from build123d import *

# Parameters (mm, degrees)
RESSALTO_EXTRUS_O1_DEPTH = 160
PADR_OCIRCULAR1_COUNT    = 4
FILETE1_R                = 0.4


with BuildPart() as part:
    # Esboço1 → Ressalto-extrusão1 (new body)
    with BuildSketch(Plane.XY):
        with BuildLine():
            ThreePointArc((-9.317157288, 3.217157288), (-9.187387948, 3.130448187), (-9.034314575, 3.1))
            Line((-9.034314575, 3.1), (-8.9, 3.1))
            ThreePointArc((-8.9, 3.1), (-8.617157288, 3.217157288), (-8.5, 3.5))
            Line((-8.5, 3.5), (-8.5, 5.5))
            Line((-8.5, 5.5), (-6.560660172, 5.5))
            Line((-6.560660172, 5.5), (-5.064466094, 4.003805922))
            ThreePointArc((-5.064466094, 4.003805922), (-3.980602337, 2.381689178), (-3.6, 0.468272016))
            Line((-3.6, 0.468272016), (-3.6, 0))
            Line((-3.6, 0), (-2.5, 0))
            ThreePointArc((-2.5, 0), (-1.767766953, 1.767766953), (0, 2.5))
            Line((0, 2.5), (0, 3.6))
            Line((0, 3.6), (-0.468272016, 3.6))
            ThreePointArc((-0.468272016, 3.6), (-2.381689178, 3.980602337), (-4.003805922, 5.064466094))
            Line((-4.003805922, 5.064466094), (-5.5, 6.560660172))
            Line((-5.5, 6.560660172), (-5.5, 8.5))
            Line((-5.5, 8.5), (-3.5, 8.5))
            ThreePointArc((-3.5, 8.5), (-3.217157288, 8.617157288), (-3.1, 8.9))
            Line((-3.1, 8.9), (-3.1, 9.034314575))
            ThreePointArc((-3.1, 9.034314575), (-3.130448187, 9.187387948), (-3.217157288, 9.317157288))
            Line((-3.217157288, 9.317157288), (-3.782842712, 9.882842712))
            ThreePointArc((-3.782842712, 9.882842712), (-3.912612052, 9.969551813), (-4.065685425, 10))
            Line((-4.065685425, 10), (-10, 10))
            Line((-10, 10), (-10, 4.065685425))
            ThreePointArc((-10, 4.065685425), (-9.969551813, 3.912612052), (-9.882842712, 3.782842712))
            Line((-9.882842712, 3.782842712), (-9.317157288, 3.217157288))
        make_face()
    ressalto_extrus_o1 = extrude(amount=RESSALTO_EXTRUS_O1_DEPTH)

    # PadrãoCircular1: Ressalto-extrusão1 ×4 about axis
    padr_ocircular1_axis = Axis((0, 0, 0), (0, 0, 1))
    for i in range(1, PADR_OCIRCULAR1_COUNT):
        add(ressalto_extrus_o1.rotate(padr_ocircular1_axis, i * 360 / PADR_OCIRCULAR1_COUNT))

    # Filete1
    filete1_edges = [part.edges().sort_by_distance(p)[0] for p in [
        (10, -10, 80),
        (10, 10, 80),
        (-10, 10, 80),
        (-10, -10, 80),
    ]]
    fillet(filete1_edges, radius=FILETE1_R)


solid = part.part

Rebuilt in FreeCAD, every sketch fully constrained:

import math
import FreeCAD as App
import Part
import Sketcher

V = App.Vector


def edges_at(feature, points):
    """Names of the edges that pass closest to the given points."""
    edges = feature.Shape.Edges
    near = lambda p: min(range(len(edges)), key=lambda i: edges[i].distToShape(Part.Vertex(*p))[0])
    return sorted({f"Edge{near(p) + 1}" for p in points})

doc = App.newDocument("Part")
body = doc.addObject("PartDesign::Body", "Body")

# Sketch on XY plane
sketch1 = doc.addObject("Sketcher::SketchObject", "Sketch")
body.addObject(sketch1)
sketch1.AttachmentSupport = (doc.XY_Plane, [""])
sketch1.MapMode = "FlatFace"
sketch1.addGeometry(Part.ArcOfCircle(Part.Circle(V(-9.034315, 3.5, 0), V(0, 0, 1), 0.4), math.radians(-135), math.radians(-90)), False)
sketch1.addGeometry(Part.LineSegment(V(-9.034315, 3.1, 0), V(-8.9, 3.1, 0)), False)
sketch1.addGeometry(Part.ArcOfCircle(Part.Circle(V(-8.9, 3.5, 0), V(0, 0, 1), 0.4), math.radians(-90), math.radians(0)), False)
sketch1.addGeometry(Part.LineSegment(V(-8.5, 3.5, 0), V(-8.5, 5.5, 0)), False)
sketch1.addGeometry(Part.LineSegment(V(-8.5, 5.5, 0), V(-6.56066, 5.5, 0)), False)
sketch1.addGeometry(Part.LineSegment(V(-6.56066, 5.5, 0), V(-5.064466, 4.003806, 0)), False)
sketch1.addGeometry(Part.ArcOfCircle(Part.Circle(V(-8.6, 0.468272, 0), V(0, 0, 1), 5), math.radians(0), math.radians(45)), False)
sketch1.addGeometry(Part.LineSegment(V(-3.6, 0.468272, 0), V(-3.6, 0, 0)), False)
sketch1.addGeometry(Part.LineSegment(V(-3.6, 0, 0), V(-2.5, 0, 0)), False)
sketch1.addGeometry(Part.ArcOfCircle(Part.Circle(V(0, 0, 0), V(0, 0, 1), 2.5), math.radians(90), math.radians(180)), False)
sketch1.addGeometry(Part.LineSegment(V(0, 2.5, 0), V(0, 3.6, 0)), False)
sketch1.addGeometry(Part.LineSegment(V(0, 3.6, 0), V(-0.468272, 3.6, 0)), False)
sketch1.addGeometry(Part.ArcOfCircle(Part.Circle(V(-0.468272, 8.6, 0), V(0, 0, 1), 5), math.radians(-135), math.radians(-90)), False)
sketch1.addGeometry(Part.LineSegment(V(-4.003806, 5.064466, 0), V(-5.5, 6.56066, 0)), False)
sketch1.addGeometry(Part.LineSegment(V(-5.5, 6.56066, 0), V(-5.5, 8.5, 0)), False)
sketch1.addGeometry(Part.LineSegment(V(-5.5, 8.5, 0), V(-3.5, 8.5, 0)), False)
sketch1.addGeometry(Part.ArcOfCircle(Part.Circle(V(-3.5, 8.9, 0), V(0, 0, 1), 0.4), math.radians(-90), math.radians(0)), False)
sketch1.addGeometry(Part.LineSegment(V(-3.1, 8.9, 0), V(-3.1, 9.034315, 0)), False)
sketch1.addGeometry(Part.ArcOfCircle(Part.Circle(V(-3.5, 9.034315, 0), V(0, 0, 1), 0.4), math.radians(0), math.radians(45)), False)
sketch1.addGeometry(Part.LineSegment(V(-3.217157, 9.317157, 0), V(-3.782843, 9.882843, 0)), False)
sketch1.addGeometry(Part.ArcOfCircle(Part.Circle(V(-4.065685, 9.6, 0), V(0, 0, 1), 0.4), math.radians(45), math.radians(90)), False)
sketch1.addGeometry(Part.LineSegment(V(-4.065685, 10, 0), V(-10, 10, 0)), False)
sketch1.addGeometry(Part.LineSegment(V(-10, 10, 0), V(-10, 4.065685, 0)), False)
sketch1.addGeometry(Part.ArcOfCircle(Part.Circle(V(-9.6, 4.065685, 0), V(0, 0, 1), 0.4), math.radians(180), math.radians(225)), False)
sketch1.addGeometry(Part.LineSegment(V(-9.882843, 3.782843, 0), V(-9.317157, 3.217157, 0)), False)
sketch1.addConstraint(Sketcher.Constraint("Tangent", 0, 2, 1, 1))
sketch1.addConstraint(Sketcher.Constraint("Tangent", 1, 2, 2, 1))
sketch1.addConstraint(Sketcher.Constraint("Tangent", 2, 2, 3, 1))
sketch1.addConstraint(Sketcher.Constraint("Coincident", 3, 2, 4, 1))
sketch1.addConstraint(Sketcher.Constraint("Coincident", 4, 2, 5, 1))
sketch1.addConstraint(Sketcher.Constraint("Tangent", 5, 2, 6, 2))
sketch1.addConstraint(Sketcher.Constraint("Tangent", 6, 1, 7, 1))
sketch1.addConstraint(Sketcher.Constraint("Coincident", 7, 2, 8, 1))
sketch1.addConstraint(Sketcher.Constraint("Coincident", 8, 2, 9, 2))
sketch1.addConstraint(Sketcher.Constraint("Coincident", 9, 1, 10, 1))
sketch1.addConstraint(Sketcher.Constraint("Coincident", 10, 2, 11, 1))
sketch1.addConstraint(Sketcher.Constraint("Tangent", 11, 2, 12, 2))
sketch1.addConstraint(Sketcher.Constraint("Tangent", 12, 1, 13, 1))
sketch1.addConstraint(Sketcher.Constraint("Coincident", 13, 2, 14, 1))
sketch1.addConstraint(Sketcher.Constraint("Coincident", 14, 2, 15, 1))
sketch1.addConstraint(Sketcher.Constraint("Tangent", 15, 2, 16, 1))
sketch1.addConstraint(Sketcher.Constraint("Tangent", 16, 2, 17, 1))
sketch1.addConstraint(Sketcher.Constraint("Tangent", 17, 2, 18, 1))
sketch1.addConstraint(Sketcher.Constraint("Tangent", 18, 2, 19, 1))
sketch1.addConstraint(Sketcher.Constraint("Tangent", 19, 2, 20, 1))
sketch1.addConstraint(Sketcher.Constraint("Tangent", 20, 2, 21, 1))
sketch1.addConstraint(Sketcher.Constraint("Coincident", 21, 2, 22, 1))
sketch1.addConstraint(Sketcher.Constraint("Tangent", 22, 2, 23, 1))
sketch1.addConstraint(Sketcher.Constraint("Tangent", 23, 2, 24, 1))
sketch1.addConstraint(Sketcher.Constraint("Tangent", 24, 2, 0, 1))
sketch1.addConstraint(Sketcher.Constraint("Horizontal", 1))
sketch1.addConstraint(Sketcher.Constraint("Vertical", 3))
sketch1.addConstraint(Sketcher.Constraint("Horizontal", 4))
sketch1.addConstraint(Sketcher.Constraint("Vertical", 7))
sketch1.addConstraint(Sketcher.Constraint("Horizontal", 8))
sketch1.addConstraint(Sketcher.Constraint("Vertical", 10))
sketch1.addConstraint(Sketcher.Constraint("Horizontal", 11))
sketch1.addConstraint(Sketcher.Constraint("Vertical", 14))
sketch1.addConstraint(Sketcher.Constraint("Horizontal", 15))
sketch1.addConstraint(Sketcher.Constraint("Vertical", 17))
sketch1.addConstraint(Sketcher.Constraint("Horizontal", 21))
sketch1.addConstraint(Sketcher.Constraint("Vertical", 22))
sketch1.addConstraint(Sketcher.Constraint("Coincident", 9, 3, -1, 1))
sketch1.addConstraint(Sketcher.Constraint("Equal", 0, 2))
sketch1.addConstraint(Sketcher.Constraint("Equal", 6, 12))
sketch1.addConstraint(Sketcher.Constraint("Equal", 2, 16))
sketch1.addConstraint(Sketcher.Constraint("Equal", 16, 18))
sketch1.addConstraint(Sketcher.Constraint("Equal", 18, 20))
sketch1.addConstraint(Sketcher.Constraint("Equal", 20, 23))
sketch1.addConstraint(Sketcher.Constraint("PointOnObject", 7, 2, -1))
sketch1.addConstraint(Sketcher.Constraint("PointOnObject", 9, 1, -2))
sketch1.addConstraint(Sketcher.Constraint("Parallel", 5, 13))
sketch1.addConstraint(Sketcher.Constraint("Parallel", 13, 19))
sketch1.addConstraint(Sketcher.Constraint("Parallel", 19, 24))
sketch1.addConstraint(Sketcher.Constraint("Equal", 15, 3))
sketch1.addConstraint(Sketcher.Constraint("Equal", 11, 7))
sketch1.addConstraint(Sketcher.Constraint("Equal", 8, 10))
sketch1.addConstraint(Sketcher.Constraint("Equal", 4, 14))
sketch1.addConstraint(Sketcher.Constraint("Equal", 1, 17))
sketch1.addConstraint(Sketcher.Constraint("Equal", 21, 22))
sketch1.addConstraint(Sketcher.Constraint("Equal", 5, 13))
sketch1.addConstraint(Sketcher.Constraint("Equal", 19, 24))
sketch1.addConstraint(Sketcher.Constraint("Radius", 6, 5.0))
sketch1.addConstraint(Sketcher.Constraint("Radius", 0, 0.4))
sketch1.addConstraint(Sketcher.Constraint("Radius", 9, 2.5))
sketch1.addConstraint(Sketcher.Constraint("DistanceX", 15, 1, 15, 2, 2.0))
sketch1.addConstraint(Sketcher.Constraint("DistanceX", 8, 1, 8, 2, 1.1))
sketch1.addConstraint(Sketcher.Constraint("DistanceY", -1, 1, 20, 2, 10.0))
sketch1.addConstraint(Sketcher.Constraint("DistanceY", 4, 2, 14, 2, 3.0))
sketch1.addConstraint(Sketcher.Constraint("Distance", 19, 0.8))
sketch1.addConstraint(Sketcher.Constraint("DistanceY", -1, 1, 0, 3, 3.5))
sketch1.addConstraint(Sketcher.Constraint("DistanceX", 4, 1, 4, 2, 1.93934))
pad1 = doc.addObject("PartDesign::Pad", "Pad")
body.addObject(pad1)
pad1.Profile = sketch1
pad1.Length = 160
doc.recompute()

polarpattern = doc.addObject("PartDesign::PolarPattern", "PolarPattern")
body.addObject(polarpattern)
polarpattern.Originals = [pad1]
polarpattern.Axis = (doc.Z_Axis, [""])
polarpattern.Angle = 360
polarpattern.Occurrences = 4
body.Tip = polarpattern
doc.recompute()

fillet = doc.addObject("PartDesign::Fillet", "Fillet")
body.addObject(fillet)
fillet.Base = (polarpattern, edges_at(polarpattern, [
    (10, -10, 80),
    (10, 10, 80),
    (-10, 10, 80),
    (-10, -10, 80),
]))
fillet.Radius = 0.4

doc.recompute()
